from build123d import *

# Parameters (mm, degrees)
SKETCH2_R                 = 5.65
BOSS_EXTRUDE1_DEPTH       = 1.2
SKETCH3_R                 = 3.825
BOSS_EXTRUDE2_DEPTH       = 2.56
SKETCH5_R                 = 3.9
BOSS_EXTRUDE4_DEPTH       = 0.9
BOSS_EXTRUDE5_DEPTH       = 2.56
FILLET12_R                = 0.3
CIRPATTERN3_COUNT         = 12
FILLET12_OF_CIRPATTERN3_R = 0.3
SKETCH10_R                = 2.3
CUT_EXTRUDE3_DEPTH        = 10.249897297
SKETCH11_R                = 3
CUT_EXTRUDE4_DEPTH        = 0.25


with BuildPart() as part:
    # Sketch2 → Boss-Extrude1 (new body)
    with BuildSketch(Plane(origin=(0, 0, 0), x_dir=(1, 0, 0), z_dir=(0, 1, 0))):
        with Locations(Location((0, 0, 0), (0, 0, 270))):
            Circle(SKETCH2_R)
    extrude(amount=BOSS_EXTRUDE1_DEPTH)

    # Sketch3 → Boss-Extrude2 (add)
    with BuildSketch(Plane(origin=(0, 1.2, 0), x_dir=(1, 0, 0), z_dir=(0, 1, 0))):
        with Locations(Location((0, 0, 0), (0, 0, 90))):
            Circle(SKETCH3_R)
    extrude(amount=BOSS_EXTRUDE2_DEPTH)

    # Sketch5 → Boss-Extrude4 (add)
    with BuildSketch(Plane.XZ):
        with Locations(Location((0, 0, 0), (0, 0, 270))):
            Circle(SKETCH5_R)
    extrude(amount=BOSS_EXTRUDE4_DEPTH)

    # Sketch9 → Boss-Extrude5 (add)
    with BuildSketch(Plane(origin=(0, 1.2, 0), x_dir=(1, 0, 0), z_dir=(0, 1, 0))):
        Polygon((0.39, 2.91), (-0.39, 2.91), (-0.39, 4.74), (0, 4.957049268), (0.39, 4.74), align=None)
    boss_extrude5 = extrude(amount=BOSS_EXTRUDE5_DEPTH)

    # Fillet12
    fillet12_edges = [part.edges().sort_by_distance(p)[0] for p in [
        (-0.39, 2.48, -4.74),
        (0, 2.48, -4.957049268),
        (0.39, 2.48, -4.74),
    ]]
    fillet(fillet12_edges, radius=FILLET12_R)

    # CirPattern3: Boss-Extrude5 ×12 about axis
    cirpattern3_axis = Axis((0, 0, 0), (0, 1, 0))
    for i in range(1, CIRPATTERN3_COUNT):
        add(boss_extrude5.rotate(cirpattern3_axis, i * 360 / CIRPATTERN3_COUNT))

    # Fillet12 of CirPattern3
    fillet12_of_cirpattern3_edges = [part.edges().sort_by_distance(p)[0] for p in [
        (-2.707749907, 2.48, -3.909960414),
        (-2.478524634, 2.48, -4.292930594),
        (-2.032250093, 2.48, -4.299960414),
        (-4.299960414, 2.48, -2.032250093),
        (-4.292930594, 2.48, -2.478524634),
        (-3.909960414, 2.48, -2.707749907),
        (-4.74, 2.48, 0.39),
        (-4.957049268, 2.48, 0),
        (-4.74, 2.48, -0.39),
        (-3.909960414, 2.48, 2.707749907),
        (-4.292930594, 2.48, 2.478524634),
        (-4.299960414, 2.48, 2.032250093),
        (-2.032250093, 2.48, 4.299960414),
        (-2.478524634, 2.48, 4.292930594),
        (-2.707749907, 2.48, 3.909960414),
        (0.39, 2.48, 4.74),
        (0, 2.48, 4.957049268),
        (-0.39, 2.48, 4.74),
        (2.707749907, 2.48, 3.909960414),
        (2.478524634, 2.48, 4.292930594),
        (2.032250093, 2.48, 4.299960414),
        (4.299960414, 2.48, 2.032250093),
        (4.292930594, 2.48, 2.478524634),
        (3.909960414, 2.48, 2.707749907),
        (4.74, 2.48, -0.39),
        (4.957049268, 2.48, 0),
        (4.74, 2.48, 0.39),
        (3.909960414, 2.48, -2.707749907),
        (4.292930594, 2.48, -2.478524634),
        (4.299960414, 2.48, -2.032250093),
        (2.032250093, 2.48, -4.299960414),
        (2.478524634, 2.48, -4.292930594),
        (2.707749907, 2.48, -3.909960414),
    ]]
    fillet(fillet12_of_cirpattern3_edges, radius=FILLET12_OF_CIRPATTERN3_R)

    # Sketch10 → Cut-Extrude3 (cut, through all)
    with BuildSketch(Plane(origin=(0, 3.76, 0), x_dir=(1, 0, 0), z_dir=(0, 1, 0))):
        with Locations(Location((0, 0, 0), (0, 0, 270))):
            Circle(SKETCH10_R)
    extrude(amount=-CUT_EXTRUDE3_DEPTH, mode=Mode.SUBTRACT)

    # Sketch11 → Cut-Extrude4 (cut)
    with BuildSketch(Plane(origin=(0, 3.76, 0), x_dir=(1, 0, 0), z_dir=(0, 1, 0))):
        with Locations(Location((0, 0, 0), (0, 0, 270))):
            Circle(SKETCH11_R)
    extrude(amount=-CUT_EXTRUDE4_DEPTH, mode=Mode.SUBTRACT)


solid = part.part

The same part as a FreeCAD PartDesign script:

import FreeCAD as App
import Part
import Sketcher
from FreeCAD import Vector
Q = App.Units.Quantity


def edges_at(feature, points):
    """Names of the edges that pass closest to the given points."""
    edges = feature.Shape.Edges
    near = lambda p: min(range(len(edges)), key=lambda i: edges[i].distToShape(Part.Vertex(*p))[0])
    return sorted({f"Edge{near(p) + 1}" for p in points})


def add_polygon(sketch, points):
    """Adds a closed chain of lines whose ends are joined by coincident constraints."""
    first, n = sketch.GeometryCount, len(points)
    for a, b in zip(points, points[1:] + points[:1]):
        sketch.addGeometry(Part.LineSegment(App.Vector(*a, 0), App.Vector(*b, 0)), False)
    for i in range(n):
        sketch.addConstraint(Sketcher.Constraint("Coincident", first + i, 2, first + (i + 1) % n, 1))

doc = App.newDocument("Part")
body = doc.addObject("PartDesign::Body", "Body")

sketch1 = body.newObject("Sketcher::SketchObject", "Sketch")
sketch1.AttachmentSupport = (doc.getObject("XZ_Plane"), [""])
sketch1.MapMode = "FlatFace"
sketch1.addGeometry(Part.Circle(Vector(0, 0, 0), Vector(0, 0, 1), 5.65), False)
sketch1.addConstraint([
    Sketcher.Constraint("Coincident", 0, 3, -1, 1),
    Sketcher.Constraint("Diameter", 0, Q("11.3 mm")),
])
pad1 = body.newObject("PartDesign::Pad", "Pad")
pad1.Profile = sketch1
pad1.Length = 1.2
pad1.Reversed = True

sketch2 = body.newObject("Sketcher::SketchObject", "Sketch001")
sketch2.AttachmentSupport = (doc.getObject("XZ_Plane"), [""])
sketch2.MapMode = "FlatFace"
sketch2.AttachmentOffset = App.Placement(Vector(0, 0, -1.2), App.Rotation())
sketch2.addGeometry(Part.Circle(Vector(0, 0, 0), Vector(0, 0, 1), 3.825), False)
sketch2.addConstraint([
    Sketcher.Constraint("Coincident", 0, 3, -1, 1),
    Sketcher.Constraint("Diameter", 0, Q("7.65 mm")),
])
pad2 = body.newObject("PartDesign::Pad", "Pad001")
pad2.Profile = sketch2
pad2.Length = 2.56
pad2.Reversed = True

sketch3 = body.newObject("Sketcher::SketchObject", "Sketch002")
sketch3.AttachmentSupport = (doc.getObject("XZ_Plane"), [""])
sketch3.MapMode = "FlatFace"
sketch3.addGeometry(Part.Circle(Vector(0, 0, 0), Vector(0, 0, 1), 3.9), False)
sketch3.addConstraint([
    Sketcher.Constraint("Coincident", 0, 3, -1, 1),
    Sketcher.Constraint("Diameter", 0, Q("7.8 mm")),
])
pad3 = body.newObject("PartDesign::Pad", "Pad002")
pad3.Profile = sketch3
pad3.Length = 0.9

sketch4 = body.newObject("Sketcher::SketchObject", "Sketch003")
sketch4.AttachmentSupport = (doc.getObject("XZ_Plane"), [""])
sketch4.MapMode = "FlatFace"
sketch4.AttachmentOffset = App.Placement(Vector(0, 0, -1.2), App.Rotation())
add_polygon(sketch4, [(-0.39, -2.91), (0.39, -2.91), (0.39, -4.74), (0, -4.957049), (-0.39, -4.74)])
sketch4.addConstraint([
    Sketcher.Constraint("Horizontal", 0),
    Sketcher.Constraint("Vertical", 1),
    Sketcher.Constraint("Vertical", 4),
    Sketcher.Constraint("Symmetric", 1, 2, 3, 2, -2),
    Sketcher.Constraint("PointOnObject", 2, 2, -2),
    Sketcher.Constraint("DistanceX", 0, 1, 0, 2, Q("0.78 mm")),
    Sketcher.Constraint("DistanceY", 1, 2, 1, 1, Q("1.83 mm")),
    Sketcher.Constraint("DistanceY", 0, 2, -1, 1, Q("2.91 mm")),
    Sketcher.Constraint("Distance", 2, Q("0.44633 mm")),
])
pad4 = body.newObject("PartDesign::Pad", "Pad003")
pad4.Profile = sketch4
pad4.Length = 2.56
pad4.Reversed = True
doc.recompute()

fillet = body.newObject("PartDesign::Fillet", "Fillet")
fillet.Base = (pad4, edges_at(pad4, [(-0.39, 2.48, -4.74), (0, 2.48, -4.957), (0.39, 2.48, -4.74)]))
fillet.Radius = 0.3
doc.recompute()

polarpattern = body.newObject("PartDesign::PolarPattern", "PolarPattern")
polarpattern.Originals = [pad4]
polarpattern.Axis = (doc.getObject("Y_Axis"), [""])
polarpattern.Angle = 360
polarpattern.Occurrences = 12
body.Tip = polarpattern
doc.recompute()

fillet2 = body.newObject("PartDesign::Fillet", "Fillet001")
fillet2.Base = (polarpattern, edges_at(polarpattern, [
    (-2.708, 2.48, -3.91),
    (-2.479, 2.48, -4.293),
    (-2.032, 2.48, -4.3),
    (-4.3, 2.48, -2.032),
    (-4.293, 2.48, -2.479),
    (-3.91, 2.48, -2.708),
    (-4.74, 2.48, 0.39),
    (-4.957, 2.48, 0),
    (-4.74, 2.48, -0.39),
    (-3.91, 2.48, 2.708),
    (-4.293, 2.48, 2.479),
    (-4.3, 2.48, 2.032),
    (-2.032, 2.48, 4.3),
    (-2.479, 2.48, 4.293),
    (-2.708, 2.48, 3.91),
    (0.39, 2.48, 4.74),
    (0, 2.48, 4.957),
    (-0.39, 2.48, 4.74),
    (2.708, 2.48, 3.91),
    (2.479, 2.48, 4.293),
    (2.032, 2.48, 4.3),
    (4.3, 2.48, 2.032),
    (4.293, 2.48, 2.479),
    (3.91, 2.48, 2.708),
    (4.74, 2.48, -0.39),
    (4.957, 2.48, 0),
    (4.74, 2.48, 0.39),
    (3.91, 2.48, -2.708),
    (4.293, 2.48, -2.479),
    (4.3, 2.48, -2.032),
    (2.032, 2.48, -4.3),
    (2.479, 2.48, -4.293),
    (2.708, 2.48, -3.91),
]))
fillet2.Radius = 0.3

sketch5 = body.newObject("Sketcher::SketchObject", "Sketch004")
sketch5.AttachmentSupport = (doc.getObject("XZ_Plane"), [""])
sketch5.MapMode = "FlatFace"
sketch5.AttachmentOffset = App.Placement(Vector(0, 0, -3.76), App.Rotation())
sketch5.addGeometry(Part.Circle(Vector(0, 0, 0), Vector(0, 0, 1), 2.3), False)
sketch5.addConstraint([
    Sketcher.Constraint("Coincident", 0, 3, -1, 1),
    Sketcher.Constraint("Diameter", 0, Q("4.6 mm")),
])
pocket1 = body.newObject("PartDesign::Pocket", "Pocket")
pocket1.Profile = sketch5
pocket1.Type = "ThroughAll"
pocket1.Reversed = True

sketch6 = body.newObject("Sketcher::SketchObject", "Sketch005")
sketch6.AttachmentSupport = (doc.getObject("XZ_Plane"), [""])
sketch6.MapMode = "FlatFace"
sketch6.AttachmentOffset = App.Placement(Vector(0, 0, -3.76), App.Rotation())
sketch6.addGeometry(Part.Circle(Vector(0, 0, 0), Vector(0, 0, 1), 3), False)
sketch6.addConstraint([
    Sketcher.Constraint("Coincident", 0, 3, -1, 1),
    Sketcher.Constraint("Diameter", 0, Q("6 mm")),
])
pocket2 = body.newObject("PartDesign::Pocket", "Pocket001")
pocket2.Profile = sketch6
pocket2.Length = 0.25
pocket2.Reversed = True

doc.recompute()
